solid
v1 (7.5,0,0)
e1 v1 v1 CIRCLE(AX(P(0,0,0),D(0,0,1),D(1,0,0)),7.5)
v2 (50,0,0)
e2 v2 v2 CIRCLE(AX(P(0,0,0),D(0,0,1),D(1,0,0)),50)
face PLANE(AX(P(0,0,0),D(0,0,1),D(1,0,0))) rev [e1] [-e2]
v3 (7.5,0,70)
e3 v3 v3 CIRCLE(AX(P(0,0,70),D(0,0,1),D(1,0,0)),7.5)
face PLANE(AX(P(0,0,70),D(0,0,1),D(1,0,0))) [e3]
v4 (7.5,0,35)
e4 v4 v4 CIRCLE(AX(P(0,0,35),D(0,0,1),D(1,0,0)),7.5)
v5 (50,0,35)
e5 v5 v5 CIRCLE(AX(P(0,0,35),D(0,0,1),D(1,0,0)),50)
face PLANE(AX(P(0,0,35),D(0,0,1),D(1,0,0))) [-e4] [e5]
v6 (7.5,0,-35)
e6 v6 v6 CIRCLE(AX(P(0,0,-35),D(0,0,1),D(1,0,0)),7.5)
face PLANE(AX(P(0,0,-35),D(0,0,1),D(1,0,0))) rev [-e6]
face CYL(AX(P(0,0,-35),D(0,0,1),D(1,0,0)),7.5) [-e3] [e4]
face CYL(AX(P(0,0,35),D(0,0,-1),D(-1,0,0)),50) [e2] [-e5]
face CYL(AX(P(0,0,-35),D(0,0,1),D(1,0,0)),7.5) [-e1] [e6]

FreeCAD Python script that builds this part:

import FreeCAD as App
import Part
import Sketcher

doc = App.newDocument("Part")
body = doc.addObject("PartDesign::Body", "Body")

sketch1 = doc.addObject("Sketcher::SketchObject", "Sketch")
body.addObject(sketch1)
sketch1.AttachmentSupport = (doc.XY_Plane, [""])
sketch1.MapMode = "FlatFace"
sketch1.addGeometry(Part.Circle(App.Vector(0, 0, 0), App.Vector(0, 0, 1), 50), False)
sketch1.addConstraint([
    Sketcher.Constraint("Coincident", 0, 3, -1, 1),
    Sketcher.Constraint("Diameter", 0, 100.0),
])
pad1 = doc.addObject("PartDesign::Pad", "Pad")
body.addObject(pad1)
pad1.Profile = sketch1
pad1.Length = 35

sketch2 = doc.addObject("Sketcher::SketchObject", "Sketch001")
body.addObject(sketch2)
sketch2.AttachmentSupport = (doc.XY_Plane, [""])
sketch2.MapMode = "FlatFace"
sketch2.AttachmentOffset = App.Placement(App.Vector(0, 0, 35), App.Rotation())
sketch2.addGeometry(Part.Circle(App.Vector(0, 0, 0), App.Vector(0, 0, 1), 7.5), False)
sketch2.addConstraint([
    Sketcher.Constraint("Coincident", 0, 3, -1, 1),
    Sketcher.Constraint("Diameter", 0, 15.0),
])
pad2 = doc.addObject("PartDesign::Pad", "Pad001")
body.addObject(pad2)
pad2.Profile = sketch2
pad2.Type = "TwoLengths"
pad2.Length = 35
pad2.Length2 = 70

doc.recompute()
